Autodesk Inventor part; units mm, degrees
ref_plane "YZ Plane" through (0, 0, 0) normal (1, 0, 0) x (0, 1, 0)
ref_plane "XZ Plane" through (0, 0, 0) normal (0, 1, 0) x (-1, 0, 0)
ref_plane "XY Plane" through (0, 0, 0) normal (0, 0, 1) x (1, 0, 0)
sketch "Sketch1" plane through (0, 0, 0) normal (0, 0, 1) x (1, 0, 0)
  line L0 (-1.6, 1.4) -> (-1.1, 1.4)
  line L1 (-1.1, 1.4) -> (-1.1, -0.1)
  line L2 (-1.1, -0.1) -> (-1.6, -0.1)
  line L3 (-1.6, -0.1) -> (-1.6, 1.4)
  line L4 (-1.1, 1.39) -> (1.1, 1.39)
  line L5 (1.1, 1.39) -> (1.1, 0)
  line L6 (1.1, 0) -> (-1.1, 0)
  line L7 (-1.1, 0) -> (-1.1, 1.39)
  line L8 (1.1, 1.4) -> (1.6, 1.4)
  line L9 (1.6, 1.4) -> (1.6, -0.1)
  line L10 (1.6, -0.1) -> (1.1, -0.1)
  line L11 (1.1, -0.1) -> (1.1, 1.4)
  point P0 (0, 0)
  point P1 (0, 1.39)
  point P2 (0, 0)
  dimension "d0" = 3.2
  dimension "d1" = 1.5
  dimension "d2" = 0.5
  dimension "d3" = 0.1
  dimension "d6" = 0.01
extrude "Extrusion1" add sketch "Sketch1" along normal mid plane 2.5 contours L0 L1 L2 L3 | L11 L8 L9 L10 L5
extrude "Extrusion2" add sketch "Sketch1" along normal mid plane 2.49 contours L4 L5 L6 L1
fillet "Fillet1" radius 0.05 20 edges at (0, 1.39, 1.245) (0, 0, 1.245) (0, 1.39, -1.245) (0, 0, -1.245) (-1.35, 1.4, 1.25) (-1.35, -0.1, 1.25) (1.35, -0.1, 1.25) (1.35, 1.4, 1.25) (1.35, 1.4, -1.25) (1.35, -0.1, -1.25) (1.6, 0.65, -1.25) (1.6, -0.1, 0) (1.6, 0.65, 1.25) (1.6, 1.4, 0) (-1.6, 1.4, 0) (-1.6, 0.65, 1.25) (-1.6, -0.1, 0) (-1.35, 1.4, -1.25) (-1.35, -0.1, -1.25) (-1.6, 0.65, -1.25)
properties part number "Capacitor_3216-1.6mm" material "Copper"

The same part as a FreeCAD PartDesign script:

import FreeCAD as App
import Part
import Sketcher
Q = App.Units.Quantity


def edges_at(feature, points):
    """Names of the edges that pass closest to the given points."""
    edges = feature.Shape.Edges
    near = lambda p: min(range(len(edges)), key=lambda i: edges[i].distToShape(Part.Vertex(*p))[0])
    return sorted({f"Edge{near(p) + 1}" for p in points})

doc = App.newDocument("Part")
body = doc.addObject("PartDesign::Body", "Body")
body.AllowCompound = True

# Sketch on XY plane
sketch1 = doc.addObject("Sketcher::SketchObject", "Sketch")
body.addObject(sketch1)
sketch1.AttachmentSupport = (doc.XY_Plane, [""])
sketch1.MapMode = "FlatFace"
sketch1.addGeometry([
    Part.LineSegment(App.Vector(-1.1, 1.4, 0), App.Vector(-1.6, 1.4, 0)),  # 0
    Part.LineSegment(App.Vector(-1.6, 1.4, 0), App.Vector(-1.6, -0.1, 0)),  # 1
    Part.LineSegment(App.Vector(-1.6, -0.1, 0), App.Vector(-1.1, -0.1, 0)),  # 2
    Part.LineSegment(App.Vector(-1.1, -0.1, 0), App.Vector(-1.1, 1.4, 0)),  # 3
    Part.LineSegment(App.Vector(1.1, 1.4, 0), App.Vector(1.1, -0.1, 0)),  # 4
    Part.LineSegment(App.Vector(1.1, -0.1, 0), App.Vector(1.6, -0.1, 0)),  # 5
    Part.LineSegment(App.Vector(1.6, -0.1, 0), App.Vector(1.6, 1.4, 0)),  # 6
    Part.LineSegment(App.Vector(1.6, 1.4, 0), App.Vector(1.1, 1.4, 0)),  # 7
], False)
sketch1.addConstraint([
    Sketcher.Constraint("Coincident", 0, 2, 1, 1),
    Sketcher.Constraint("Coincident", 1, 2, 2, 1),
    Sketcher.Constraint("Coincident", 2, 2, 3, 1),
    Sketcher.Constraint("Coincident", 3, 2, 0, 1),
    Sketcher.Constraint("Coincident", 4, 2, 5, 1),
    Sketcher.Constraint("Coincident", 5, 2, 6, 1),
    Sketcher.Constraint("Coincident", 6, 2, 7, 1),
    Sketcher.Constraint("Coincident", 7, 2, 4, 1),
    Sketcher.Constraint("Horizontal", 0),
    Sketcher.Constraint("Vertical", 1),
    Sketcher.Constraint("Horizontal", 2),
    Sketcher.Constraint("Vertical", 3),
    Sketcher.Constraint("Vertical", 4),
    Sketcher.Constraint("Horizontal", 5),
    Sketcher.Constraint("Vertical", 6),
    Sketcher.Constraint("Horizontal", 7),
    Sketcher.Constraint("Symmetric", 2, 2, 4, 2, -2),
    Sketcher.Constraint("Symmetric", 0, 2, 6, 2, -2),
    Sketcher.Constraint("DistanceX", 0, 2, 0, 1, Q("0.5 mm")),
    Sketcher.Constraint("DistanceY", 1, 2, 1, 1, Q("1.5 mm")),
    Sketcher.Constraint("DistanceY", 1, 2, -1, 1, Q("0.1 mm")),
    Sketcher.Constraint("DistanceX", 1, 2, 5, 2, Q("3.2 mm")),
])
pad1 = doc.addObject("PartDesign::Pad", "Pad")
body.addObject(pad1)
pad1.Profile = sketch1
pad1.Length = 2.5
pad1.Midplane = True

# Sketch on XY plane
sketch2 = doc.addObject("Sketcher::SketchObject", "Sketch001")
body.addObject(sketch2)
sketch2.AttachmentSupport = (doc.XY_Plane, [""])
sketch2.MapMode = "FlatFace"
sketch2.addGeometry([
    Part.LineSegment(App.Vector(1.1, 1.4, 0), App.Vector(-1.1, 1.4, 0)),
    Part.LineSegment(App.Vector(-1.1, 1.4, 0), App.Vector(-1.1, 0, 0)),
    Part.LineSegment(App.Vector(-1.1, 0, 0), App.Vector(1.1, 0, 0)),
    Part.LineSegment(App.Vector(1.1, 0, 0), App.Vector(1.1, 1.4, 0)),
], False)
sketch2.addConstraint([
    Sketcher.Constraint("Coincident", 0, 2, 1, 1),
    Sketcher.Constraint("Coincident", 1, 2, 2, 1),
    Sketcher.Constraint("Coincident", 2, 2, 3, 1),
    Sketcher.Constraint("Coincident", 3, 2, 0, 1),
    Sketcher.Constraint("Horizontal", 0),
    Sketcher.Constraint("Vertical", 1),
    Sketcher.Constraint("Horizontal", 2),
    Sketcher.Constraint("Vertical", 3),
    Sketcher.Constraint("Symmetric", 1, 2, 2, 2, -1, 1),
    Sketcher.Constraint("DistanceX", 0, 2, 0, 1, Q("2.2 mm")),
    Sketcher.Constraint("DistanceY", 1, 2, 1, 1, Q("1.39 mm")),
])
pad2 = doc.addObject("PartDesign::Pad", "Pad001")
body.addObject(pad2)
pad2.Profile = sketch2
pad2.Length = 2.49
pad2.Midplane = True
doc.recompute()

fillet = doc.addObject("PartDesign::Fillet", "Fillet")
body.addObject(fillet)
fillet.Base = (pad2, edges_at(pad2, [
    (0, 1.39, 1.245),
    (0, 0, 1.245),
    (0, 1.39, -1.245),
    (0, 0, -1.245),
    (-1.35, 1.4, 1.25),
    (-1.35, -0.1, 1.25),
    (1.35, -0.1, 1.25),
    (1.35, 1.4, 1.25),
    (1.35, 1.4, -1.25),
    (1.35, -0.1, -1.25),
    (1.6, 0.65, -1.25),
    (1.6, -0.1, 0),
    (1.6, 0.65, 1.25),
    (1.6, 1.4, 0),
    (-1.6, 1.4, 0),
    (-1.6, 0.65, 1.25),
    (-1.6, -0.1, 0),
    (-1.35, 1.4, -1.25),
    (-1.35, -0.1, -1.25),
    (-1.6, 0.65, -1.25),
]))
fillet.Radius = 0.05

doc.recompute()
